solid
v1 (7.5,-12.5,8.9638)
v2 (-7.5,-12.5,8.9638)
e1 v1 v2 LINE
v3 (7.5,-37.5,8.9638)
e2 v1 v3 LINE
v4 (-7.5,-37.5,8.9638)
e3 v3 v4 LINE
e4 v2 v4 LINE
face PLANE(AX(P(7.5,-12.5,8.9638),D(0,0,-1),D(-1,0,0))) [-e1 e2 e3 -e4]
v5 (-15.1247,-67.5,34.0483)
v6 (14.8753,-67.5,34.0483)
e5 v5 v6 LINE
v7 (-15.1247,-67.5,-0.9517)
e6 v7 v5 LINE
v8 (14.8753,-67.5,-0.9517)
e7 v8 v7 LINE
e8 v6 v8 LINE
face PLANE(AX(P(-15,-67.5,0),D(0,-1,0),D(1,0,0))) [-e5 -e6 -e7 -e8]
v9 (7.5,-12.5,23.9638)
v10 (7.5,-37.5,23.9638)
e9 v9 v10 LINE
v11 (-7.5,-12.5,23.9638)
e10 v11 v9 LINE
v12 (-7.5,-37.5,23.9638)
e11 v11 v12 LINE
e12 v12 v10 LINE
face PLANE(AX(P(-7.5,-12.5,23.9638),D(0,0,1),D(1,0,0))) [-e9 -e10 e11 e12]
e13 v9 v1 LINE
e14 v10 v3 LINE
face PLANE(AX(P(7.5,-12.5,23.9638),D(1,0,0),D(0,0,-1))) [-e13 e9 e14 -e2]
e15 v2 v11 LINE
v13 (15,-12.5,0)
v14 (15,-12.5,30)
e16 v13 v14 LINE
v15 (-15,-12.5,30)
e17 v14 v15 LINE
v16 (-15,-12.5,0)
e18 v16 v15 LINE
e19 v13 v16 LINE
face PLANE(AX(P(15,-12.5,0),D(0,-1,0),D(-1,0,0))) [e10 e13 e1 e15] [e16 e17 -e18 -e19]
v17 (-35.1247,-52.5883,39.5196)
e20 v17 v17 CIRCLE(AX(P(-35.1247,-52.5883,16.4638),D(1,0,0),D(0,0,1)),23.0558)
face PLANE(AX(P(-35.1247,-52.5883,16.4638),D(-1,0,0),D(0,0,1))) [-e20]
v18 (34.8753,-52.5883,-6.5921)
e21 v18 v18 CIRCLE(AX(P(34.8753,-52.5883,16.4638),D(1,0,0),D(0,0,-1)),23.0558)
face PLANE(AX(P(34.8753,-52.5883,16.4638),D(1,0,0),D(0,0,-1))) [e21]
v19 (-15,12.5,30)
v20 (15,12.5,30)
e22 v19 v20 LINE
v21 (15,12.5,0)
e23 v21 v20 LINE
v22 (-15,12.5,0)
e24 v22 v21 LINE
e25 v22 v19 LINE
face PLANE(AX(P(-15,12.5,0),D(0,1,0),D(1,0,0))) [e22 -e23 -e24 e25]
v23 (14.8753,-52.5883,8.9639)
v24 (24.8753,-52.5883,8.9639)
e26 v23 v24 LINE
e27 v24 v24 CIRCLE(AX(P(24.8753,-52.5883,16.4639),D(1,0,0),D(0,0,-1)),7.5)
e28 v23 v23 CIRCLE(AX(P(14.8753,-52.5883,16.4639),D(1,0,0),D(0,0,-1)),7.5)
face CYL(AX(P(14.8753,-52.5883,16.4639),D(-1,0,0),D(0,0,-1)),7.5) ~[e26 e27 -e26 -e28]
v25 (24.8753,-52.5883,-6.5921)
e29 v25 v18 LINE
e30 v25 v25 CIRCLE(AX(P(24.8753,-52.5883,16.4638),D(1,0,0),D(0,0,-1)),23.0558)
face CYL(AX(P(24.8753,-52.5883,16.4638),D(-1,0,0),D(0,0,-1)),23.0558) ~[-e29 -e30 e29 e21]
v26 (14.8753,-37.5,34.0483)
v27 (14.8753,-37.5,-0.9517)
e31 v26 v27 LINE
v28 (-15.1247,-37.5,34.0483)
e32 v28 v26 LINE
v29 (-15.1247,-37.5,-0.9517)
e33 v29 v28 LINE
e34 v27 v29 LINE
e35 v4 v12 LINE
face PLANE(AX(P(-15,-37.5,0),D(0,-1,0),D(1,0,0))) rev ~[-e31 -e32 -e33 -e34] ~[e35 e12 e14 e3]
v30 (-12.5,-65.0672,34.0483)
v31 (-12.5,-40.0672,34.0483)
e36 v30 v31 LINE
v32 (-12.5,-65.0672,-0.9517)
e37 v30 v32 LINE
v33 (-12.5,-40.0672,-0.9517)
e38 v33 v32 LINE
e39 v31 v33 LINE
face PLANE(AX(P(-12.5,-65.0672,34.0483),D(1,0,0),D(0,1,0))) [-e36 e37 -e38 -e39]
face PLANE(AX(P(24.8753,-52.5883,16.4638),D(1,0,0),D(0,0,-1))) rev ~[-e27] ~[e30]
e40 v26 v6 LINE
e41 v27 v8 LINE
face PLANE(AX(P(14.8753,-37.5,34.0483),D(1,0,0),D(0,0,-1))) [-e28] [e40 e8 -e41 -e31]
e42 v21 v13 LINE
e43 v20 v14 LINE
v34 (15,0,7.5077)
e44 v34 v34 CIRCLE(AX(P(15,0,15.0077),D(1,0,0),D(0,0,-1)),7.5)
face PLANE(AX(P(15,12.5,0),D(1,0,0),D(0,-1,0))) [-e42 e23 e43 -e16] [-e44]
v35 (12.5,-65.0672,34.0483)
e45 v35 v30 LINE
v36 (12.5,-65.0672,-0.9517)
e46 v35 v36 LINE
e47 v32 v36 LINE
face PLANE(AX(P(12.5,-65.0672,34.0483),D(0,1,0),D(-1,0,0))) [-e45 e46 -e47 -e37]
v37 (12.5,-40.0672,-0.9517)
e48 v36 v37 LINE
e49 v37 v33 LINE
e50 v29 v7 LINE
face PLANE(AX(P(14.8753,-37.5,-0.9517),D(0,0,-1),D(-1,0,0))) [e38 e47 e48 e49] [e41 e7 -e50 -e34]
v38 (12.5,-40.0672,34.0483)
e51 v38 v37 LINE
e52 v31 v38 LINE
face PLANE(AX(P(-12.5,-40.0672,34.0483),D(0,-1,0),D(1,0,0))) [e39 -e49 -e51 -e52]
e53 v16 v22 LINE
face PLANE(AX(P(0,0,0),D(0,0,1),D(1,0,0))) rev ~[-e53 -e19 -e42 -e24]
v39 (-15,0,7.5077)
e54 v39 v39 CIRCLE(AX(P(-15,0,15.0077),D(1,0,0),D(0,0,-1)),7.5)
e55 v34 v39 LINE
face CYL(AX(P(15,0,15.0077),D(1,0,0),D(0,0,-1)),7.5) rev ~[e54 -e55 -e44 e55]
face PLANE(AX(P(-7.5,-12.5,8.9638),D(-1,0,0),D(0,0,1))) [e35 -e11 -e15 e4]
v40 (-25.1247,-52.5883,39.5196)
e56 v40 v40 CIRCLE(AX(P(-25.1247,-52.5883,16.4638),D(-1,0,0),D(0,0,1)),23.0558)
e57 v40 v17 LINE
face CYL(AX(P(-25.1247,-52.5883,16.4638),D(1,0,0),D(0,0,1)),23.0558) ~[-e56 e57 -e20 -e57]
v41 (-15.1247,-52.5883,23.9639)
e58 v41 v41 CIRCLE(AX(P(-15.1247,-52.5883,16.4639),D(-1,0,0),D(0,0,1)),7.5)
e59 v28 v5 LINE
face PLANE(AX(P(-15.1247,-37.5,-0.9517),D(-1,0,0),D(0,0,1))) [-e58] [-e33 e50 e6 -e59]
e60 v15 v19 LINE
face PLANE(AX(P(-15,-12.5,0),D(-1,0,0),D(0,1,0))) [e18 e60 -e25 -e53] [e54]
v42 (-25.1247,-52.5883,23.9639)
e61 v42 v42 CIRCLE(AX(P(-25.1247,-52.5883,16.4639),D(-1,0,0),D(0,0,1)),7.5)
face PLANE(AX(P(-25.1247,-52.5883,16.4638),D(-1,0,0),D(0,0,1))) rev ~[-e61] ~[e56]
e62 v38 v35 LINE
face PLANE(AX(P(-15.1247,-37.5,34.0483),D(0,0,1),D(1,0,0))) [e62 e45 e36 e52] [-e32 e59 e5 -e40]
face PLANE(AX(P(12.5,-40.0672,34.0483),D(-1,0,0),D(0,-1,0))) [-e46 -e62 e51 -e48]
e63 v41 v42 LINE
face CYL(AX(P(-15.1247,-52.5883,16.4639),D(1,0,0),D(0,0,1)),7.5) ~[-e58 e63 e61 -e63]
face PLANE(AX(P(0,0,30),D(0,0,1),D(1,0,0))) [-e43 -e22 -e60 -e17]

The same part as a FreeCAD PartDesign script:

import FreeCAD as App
import Part
import Sketcher

V = App.Vector
Q = App.Units.Quantity


def add_polygon(sketch, points):
    """Adds a closed chain of lines whose ends are joined by coincident constraints."""
    first, n = sketch.GeometryCount, len(points)
    for a, b in zip(points, points[1:] + points[:1]):
        sketch.addGeometry(Part.LineSegment(App.Vector(*a, 0), App.Vector(*b, 0)), False)
    for i in range(n):
        sketch.addConstraint(Sketcher.Constraint("Coincident", first + i, 2, first + (i + 1) % n, 1))

doc = App.newDocument("Part")
body = doc.addObject("PartDesign::Body", "Body")

# Sketch on XY plane
sketch1 = doc.addObject("Sketcher::SketchObject", "Sketch")
body.addObject(sketch1)
sketch1.AttachmentSupport = (doc.XY_Plane, [""])
sketch1.MapMode = "FlatFace"
add_polygon(sketch1, [(15, 12), (-15, 12), (-15, -12), (15, -12)])  # lines 0-3
sketch1.addConstraint(Sketcher.Constraint("Horizontal", 0))
sketch1.addConstraint(Sketcher.Constraint("Vertical", 1))
sketch1.addConstraint(Sketcher.Constraint("Horizontal", 2))
sketch1.addConstraint(Sketcher.Constraint("Vertical", 3))
sketch1.addConstraint(Sketcher.Constraint("Symmetric", 0, 2, 2, 2, -1, 1))
sketch1.addConstraint(Sketcher.Constraint("DistanceX", 0, 2, 0, 1, Q("30 mm")))
sketch1.addConstraint(Sketcher.Constraint("DistanceY", 1, 2, 1, 1, Q("25 mm")))
pad1 = doc.addObject("PartDesign::Pad", "Pad")
body.addObject(pad1)
pad1.Profile = sketch1
pad1.Length = 30

# Sketch on YZ plane
sketch2 = doc.addObject("Sketcher::SketchObject", "Sketch001")
body.addObject(sketch2)
sketch2.AttachmentSupport = (doc.YZ_Plane, [""])
sketch2.MapMode = "FlatFace"
sketch2.AttachmentOffset = App.Placement(V(0, 0, 15), App.Rotation())
sketch2.addGeometry(Part.Circle(V(0, 15, 0), V(0, 0, 1), 8), False)
sketch2.addConstraint(Sketcher.Constraint("PointOnObject", 0, 3, -2))
sketch2.addConstraint(Sketcher.Constraint("Diameter", 0, Q("15 mm")))
sketch2.addConstraint(Sketcher.Constraint("DistanceY", -1, 1, 0, 3, Q("15.0077 mm")))
pocket1 = doc.addObject("PartDesign::Pocket", "Pocket")
body.addObject(pocket1)
pocket1.Profile = sketch2
pocket1.Type = "ThroughAll"

# Sketch on XZ plane
sketch3 = doc.addObject("Sketcher::SketchObject", "Sketch002")
body.addObject(sketch3)
sketch3.AttachmentSupport = (doc.XZ_Plane, [""])
sketch3.MapMode = "FlatFace"
sketch3.AttachmentOffset = App.Placement(V(0, 0, 12.5), App.Rotation())
add_polygon(sketch3, [(8, 24), (-8, 24), (-8, 9), (8, 9)])  # lines 0-3
sketch3.addConstraint(Sketcher.Constraint("Horizontal", 0))
sketch3.addConstraint(Sketcher.Constraint("Vertical", 1))
sketch3.addConstraint(Sketcher.Constraint("Horizontal", 2))
sketch3.addConstraint(Sketcher.Constraint("Vertical", 3))
sketch3.addConstraint(Sketcher.Constraint("Equal", 2, 1))
sketch3.addConstraint(Sketcher.Constraint("DistanceX", 0, 2, 0, 1, Q("15 mm")))
sketch3.addConstraint(Sketcher.Constraint("DistanceX", 0, 2, -1, 1, Q("7.5 mm")))
sketch3.addConstraint(Sketcher.Constraint("DistanceY", -1, 1, 0, 2, Q("23.9638 mm")))
pad2 = doc.addObject("PartDesign::Pad", "Pad001")
body.addObject(pad2)
pad2.Profile = sketch3
pad2.Length = 25

# Sketch on XZ plane
sketch4 = doc.addObject("Sketcher::SketchObject", "Sketch003")
body.addObject(sketch4)
sketch4.AttachmentSupport = (doc.XZ_Plane, [""])
sketch4.MapMode = "FlatFace"
sketch4.AttachmentOffset = App.Placement(V(0, 0, 37.5), App.Rotation())
add_polygon(sketch4, [(15, 34), (-15, 34), (-15, -1), (15, -1)])  # lines 0-3
sketch4.addConstraint(Sketcher.Constraint("Horizontal", 0))
sketch4.addConstraint(Sketcher.Constraint("Vertical", 1))
sketch4.addConstraint(Sketcher.Constraint("Horizontal", 2))
sketch4.addConstraint(Sketcher.Constraint("Vertical", 3))
sketch4.addConstraint(Sketcher.Constraint("DistanceX", 0, 2, 0, 1, Q("30 mm")))
sketch4.addConstraint(Sketcher.Constraint("DistanceY", 1, 2, 1, 1, Q("35 mm")))
sketch4.addConstraint(Sketcher.Constraint("DistanceX", 0, 2, -1, 1, Q("15.1247 mm")))
sketch4.addConstraint(Sketcher.Constraint("DistanceY", -1, 1, 0, 2, Q("34.0483 mm")))
pad3 = doc.addObject("PartDesign::Pad", "Pad002")
body.addObject(pad3)
pad3.Profile = sketch4
pad3.Length = 30

# Sketch on YZ plane
sketch5 = doc.addObject("Sketcher::SketchObject", "Sketch004")
body.addObject(sketch5)
sketch5.AttachmentSupport = (doc.YZ_Plane, [""])
sketch5.MapMode = "FlatFace"
sketch5.AttachmentOffset = App.Placement(V(0, 0, -15.1247), App.Rotation())
sketch5.addGeometry(Part.Circle(V(-53, 16, 0), V(0, 0, 1), 8), False)
sketch5.addConstraint(Sketcher.Constraint("Diameter", 0, Q("15 mm")))
sketch5.addConstraint(Sketcher.Constraint("DistanceY", -1, 1, 0, 3, Q("16.464 mm")))
sketch5.addConstraint(Sketcher.Constraint("DistanceX", 0, 3, -1, 1, Q("52.5883 mm")))
pad4 = doc.addObject("PartDesign::Pad", "Pad003")
body.addObject(pad4)
pad4.Profile = sketch5
pad4.Length = 10
pad4.Reversed = True

# Sketch on YZ plane
sketch6 = doc.addObject("Sketcher::SketchObject", "Sketch005")
body.addObject(sketch6)
sketch6.AttachmentSupport = (doc.YZ_Plane, [""])
sketch6.MapMode = "FlatFace"
sketch6.AttachmentOffset = App.Placement(V(0, 0, 14.8753), App.Rotation())
sketch6.addGeometry(Part.Circle(V(-53, 16, 0), V(0, 0, 1), 8), False)
sketch6.addConstraint(Sketcher.Constraint("Diameter", 0, Q("15 mm")))
sketch6.addConstraint(Sketcher.Constraint("DistanceY", -1, 1, 0, 3, Q("16.464 mm")))
sketch6.addConstraint(Sketcher.Constraint("DistanceX", 0, 3, -1, 1, Q("52.5883 mm")))
pad5 = doc.addObject("PartDesign::Pad", "Pad004")
body.addObject(pad5)
pad5.Profile = sketch6
pad5.Length = 10

# Sketch on YZ plane
sketch7 = doc.addObject("Sketcher::SketchObject", "Sketch006")
body.addObject(sketch7)
sketch7.AttachmentSupport = (doc.YZ_Plane, [""])
sketch7.MapMode = "FlatFace"
sketch7.AttachmentOffset = App.Placement(V(0, 0, -25.1247), App.Rotation())
sketch7.addGeometry(Part.Circle(V(-53, 16, 0), V(0, 0, 1), 23), False)
sketch7.addConstraint(Sketcher.Constraint("Diameter", 0, Q("46.1116 mm")))
sketch7.addConstraint(Sketcher.Constraint("DistanceX", 0, 3, -1, 1, Q("52.5883 mm")))
sketch7.addConstraint(Sketcher.Constraint("DistanceY", -1, 1, 0, 3, Q("16.4638 mm")))
pad6 = doc.addObject("PartDesign::Pad", "Pad005")
body.addObject(pad6)
pad6.Profile = sketch7
pad6.Length = 10
pad6.Reversed = True

# Sketch on YZ plane
sketch8 = doc.addObject("Sketcher::SketchObject", "Sketch007")
body.addObject(sketch8)
sketch8.AttachmentSupport = (doc.YZ_Plane, [""])
sketch8.MapMode = "FlatFace"
sketch8.AttachmentOffset = App.Placement(V(0, 0, 24.8753), App.Rotation())
sketch8.addGeometry(Part.Circle(V(-53, 16, 0), V(0, 0, 1), 23), False)
sketch8.addConstraint(Sketcher.Constraint("Diameter", 0, Q("46.1116 mm")))
sketch8.addConstraint(Sketcher.Constraint("DistanceX", 0, 3, -1, 1, Q("52.5883 mm")))
sketch8.addConstraint(Sketcher.Constraint("DistanceY", -1, 1, 0, 3, Q("16.4638 mm")))
pad7 = doc.addObject("PartDesign::Pad", "Pad006")
body.addObject(pad7)
pad7.Profile = sketch8
pad7.Length = 10

# Sketch on XY plane
sketch9 = doc.addObject("Sketcher::SketchObject", "Sketch008")
body.addObject(sketch9)
sketch9.AttachmentSupport = (doc.XY_Plane, [""])
sketch9.MapMode = "FlatFace"
sketch9.AttachmentOffset = App.Placement(V(0, 0, 34.0483), App.Rotation())
add_polygon(sketch9, [(12, -40), (-12, -40), (-12, -65), (12, -65)])  # lines 0-3
sketch9.addConstraint(Sketcher.Constraint("Horizontal", 0))
sketch9.addConstraint(Sketcher.Constraint("Vertical", 1))
sketch9.addConstraint(Sketcher.Constraint("Horizontal", 2))
sketch9.addConstraint(Sketcher.Constraint("Vertical", 3))
sketch9.addConstraint(Sketcher.Constraint("Equal", 2, 1))
sketch9.addConstraint(Sketcher.Constraint("DistanceX", 0, 2, 0, 1, Q("25 mm")))
sketch9.addConstraint(Sketcher.Constraint("DistanceX", 0, 2, -1, 1, Q("12.5 mm")))
sketch9.addConstraint(Sketcher.Constraint("DistanceY", 0, 2, -1, 1, Q("40.0672 mm")))
pocket2 = doc.addObject("PartDesign::Pocket", "Pocket001")
body.addObject(pocket2)
pocket2.Profile = sketch9
pocket2.Type = "ThroughAll"

doc.recompute()
